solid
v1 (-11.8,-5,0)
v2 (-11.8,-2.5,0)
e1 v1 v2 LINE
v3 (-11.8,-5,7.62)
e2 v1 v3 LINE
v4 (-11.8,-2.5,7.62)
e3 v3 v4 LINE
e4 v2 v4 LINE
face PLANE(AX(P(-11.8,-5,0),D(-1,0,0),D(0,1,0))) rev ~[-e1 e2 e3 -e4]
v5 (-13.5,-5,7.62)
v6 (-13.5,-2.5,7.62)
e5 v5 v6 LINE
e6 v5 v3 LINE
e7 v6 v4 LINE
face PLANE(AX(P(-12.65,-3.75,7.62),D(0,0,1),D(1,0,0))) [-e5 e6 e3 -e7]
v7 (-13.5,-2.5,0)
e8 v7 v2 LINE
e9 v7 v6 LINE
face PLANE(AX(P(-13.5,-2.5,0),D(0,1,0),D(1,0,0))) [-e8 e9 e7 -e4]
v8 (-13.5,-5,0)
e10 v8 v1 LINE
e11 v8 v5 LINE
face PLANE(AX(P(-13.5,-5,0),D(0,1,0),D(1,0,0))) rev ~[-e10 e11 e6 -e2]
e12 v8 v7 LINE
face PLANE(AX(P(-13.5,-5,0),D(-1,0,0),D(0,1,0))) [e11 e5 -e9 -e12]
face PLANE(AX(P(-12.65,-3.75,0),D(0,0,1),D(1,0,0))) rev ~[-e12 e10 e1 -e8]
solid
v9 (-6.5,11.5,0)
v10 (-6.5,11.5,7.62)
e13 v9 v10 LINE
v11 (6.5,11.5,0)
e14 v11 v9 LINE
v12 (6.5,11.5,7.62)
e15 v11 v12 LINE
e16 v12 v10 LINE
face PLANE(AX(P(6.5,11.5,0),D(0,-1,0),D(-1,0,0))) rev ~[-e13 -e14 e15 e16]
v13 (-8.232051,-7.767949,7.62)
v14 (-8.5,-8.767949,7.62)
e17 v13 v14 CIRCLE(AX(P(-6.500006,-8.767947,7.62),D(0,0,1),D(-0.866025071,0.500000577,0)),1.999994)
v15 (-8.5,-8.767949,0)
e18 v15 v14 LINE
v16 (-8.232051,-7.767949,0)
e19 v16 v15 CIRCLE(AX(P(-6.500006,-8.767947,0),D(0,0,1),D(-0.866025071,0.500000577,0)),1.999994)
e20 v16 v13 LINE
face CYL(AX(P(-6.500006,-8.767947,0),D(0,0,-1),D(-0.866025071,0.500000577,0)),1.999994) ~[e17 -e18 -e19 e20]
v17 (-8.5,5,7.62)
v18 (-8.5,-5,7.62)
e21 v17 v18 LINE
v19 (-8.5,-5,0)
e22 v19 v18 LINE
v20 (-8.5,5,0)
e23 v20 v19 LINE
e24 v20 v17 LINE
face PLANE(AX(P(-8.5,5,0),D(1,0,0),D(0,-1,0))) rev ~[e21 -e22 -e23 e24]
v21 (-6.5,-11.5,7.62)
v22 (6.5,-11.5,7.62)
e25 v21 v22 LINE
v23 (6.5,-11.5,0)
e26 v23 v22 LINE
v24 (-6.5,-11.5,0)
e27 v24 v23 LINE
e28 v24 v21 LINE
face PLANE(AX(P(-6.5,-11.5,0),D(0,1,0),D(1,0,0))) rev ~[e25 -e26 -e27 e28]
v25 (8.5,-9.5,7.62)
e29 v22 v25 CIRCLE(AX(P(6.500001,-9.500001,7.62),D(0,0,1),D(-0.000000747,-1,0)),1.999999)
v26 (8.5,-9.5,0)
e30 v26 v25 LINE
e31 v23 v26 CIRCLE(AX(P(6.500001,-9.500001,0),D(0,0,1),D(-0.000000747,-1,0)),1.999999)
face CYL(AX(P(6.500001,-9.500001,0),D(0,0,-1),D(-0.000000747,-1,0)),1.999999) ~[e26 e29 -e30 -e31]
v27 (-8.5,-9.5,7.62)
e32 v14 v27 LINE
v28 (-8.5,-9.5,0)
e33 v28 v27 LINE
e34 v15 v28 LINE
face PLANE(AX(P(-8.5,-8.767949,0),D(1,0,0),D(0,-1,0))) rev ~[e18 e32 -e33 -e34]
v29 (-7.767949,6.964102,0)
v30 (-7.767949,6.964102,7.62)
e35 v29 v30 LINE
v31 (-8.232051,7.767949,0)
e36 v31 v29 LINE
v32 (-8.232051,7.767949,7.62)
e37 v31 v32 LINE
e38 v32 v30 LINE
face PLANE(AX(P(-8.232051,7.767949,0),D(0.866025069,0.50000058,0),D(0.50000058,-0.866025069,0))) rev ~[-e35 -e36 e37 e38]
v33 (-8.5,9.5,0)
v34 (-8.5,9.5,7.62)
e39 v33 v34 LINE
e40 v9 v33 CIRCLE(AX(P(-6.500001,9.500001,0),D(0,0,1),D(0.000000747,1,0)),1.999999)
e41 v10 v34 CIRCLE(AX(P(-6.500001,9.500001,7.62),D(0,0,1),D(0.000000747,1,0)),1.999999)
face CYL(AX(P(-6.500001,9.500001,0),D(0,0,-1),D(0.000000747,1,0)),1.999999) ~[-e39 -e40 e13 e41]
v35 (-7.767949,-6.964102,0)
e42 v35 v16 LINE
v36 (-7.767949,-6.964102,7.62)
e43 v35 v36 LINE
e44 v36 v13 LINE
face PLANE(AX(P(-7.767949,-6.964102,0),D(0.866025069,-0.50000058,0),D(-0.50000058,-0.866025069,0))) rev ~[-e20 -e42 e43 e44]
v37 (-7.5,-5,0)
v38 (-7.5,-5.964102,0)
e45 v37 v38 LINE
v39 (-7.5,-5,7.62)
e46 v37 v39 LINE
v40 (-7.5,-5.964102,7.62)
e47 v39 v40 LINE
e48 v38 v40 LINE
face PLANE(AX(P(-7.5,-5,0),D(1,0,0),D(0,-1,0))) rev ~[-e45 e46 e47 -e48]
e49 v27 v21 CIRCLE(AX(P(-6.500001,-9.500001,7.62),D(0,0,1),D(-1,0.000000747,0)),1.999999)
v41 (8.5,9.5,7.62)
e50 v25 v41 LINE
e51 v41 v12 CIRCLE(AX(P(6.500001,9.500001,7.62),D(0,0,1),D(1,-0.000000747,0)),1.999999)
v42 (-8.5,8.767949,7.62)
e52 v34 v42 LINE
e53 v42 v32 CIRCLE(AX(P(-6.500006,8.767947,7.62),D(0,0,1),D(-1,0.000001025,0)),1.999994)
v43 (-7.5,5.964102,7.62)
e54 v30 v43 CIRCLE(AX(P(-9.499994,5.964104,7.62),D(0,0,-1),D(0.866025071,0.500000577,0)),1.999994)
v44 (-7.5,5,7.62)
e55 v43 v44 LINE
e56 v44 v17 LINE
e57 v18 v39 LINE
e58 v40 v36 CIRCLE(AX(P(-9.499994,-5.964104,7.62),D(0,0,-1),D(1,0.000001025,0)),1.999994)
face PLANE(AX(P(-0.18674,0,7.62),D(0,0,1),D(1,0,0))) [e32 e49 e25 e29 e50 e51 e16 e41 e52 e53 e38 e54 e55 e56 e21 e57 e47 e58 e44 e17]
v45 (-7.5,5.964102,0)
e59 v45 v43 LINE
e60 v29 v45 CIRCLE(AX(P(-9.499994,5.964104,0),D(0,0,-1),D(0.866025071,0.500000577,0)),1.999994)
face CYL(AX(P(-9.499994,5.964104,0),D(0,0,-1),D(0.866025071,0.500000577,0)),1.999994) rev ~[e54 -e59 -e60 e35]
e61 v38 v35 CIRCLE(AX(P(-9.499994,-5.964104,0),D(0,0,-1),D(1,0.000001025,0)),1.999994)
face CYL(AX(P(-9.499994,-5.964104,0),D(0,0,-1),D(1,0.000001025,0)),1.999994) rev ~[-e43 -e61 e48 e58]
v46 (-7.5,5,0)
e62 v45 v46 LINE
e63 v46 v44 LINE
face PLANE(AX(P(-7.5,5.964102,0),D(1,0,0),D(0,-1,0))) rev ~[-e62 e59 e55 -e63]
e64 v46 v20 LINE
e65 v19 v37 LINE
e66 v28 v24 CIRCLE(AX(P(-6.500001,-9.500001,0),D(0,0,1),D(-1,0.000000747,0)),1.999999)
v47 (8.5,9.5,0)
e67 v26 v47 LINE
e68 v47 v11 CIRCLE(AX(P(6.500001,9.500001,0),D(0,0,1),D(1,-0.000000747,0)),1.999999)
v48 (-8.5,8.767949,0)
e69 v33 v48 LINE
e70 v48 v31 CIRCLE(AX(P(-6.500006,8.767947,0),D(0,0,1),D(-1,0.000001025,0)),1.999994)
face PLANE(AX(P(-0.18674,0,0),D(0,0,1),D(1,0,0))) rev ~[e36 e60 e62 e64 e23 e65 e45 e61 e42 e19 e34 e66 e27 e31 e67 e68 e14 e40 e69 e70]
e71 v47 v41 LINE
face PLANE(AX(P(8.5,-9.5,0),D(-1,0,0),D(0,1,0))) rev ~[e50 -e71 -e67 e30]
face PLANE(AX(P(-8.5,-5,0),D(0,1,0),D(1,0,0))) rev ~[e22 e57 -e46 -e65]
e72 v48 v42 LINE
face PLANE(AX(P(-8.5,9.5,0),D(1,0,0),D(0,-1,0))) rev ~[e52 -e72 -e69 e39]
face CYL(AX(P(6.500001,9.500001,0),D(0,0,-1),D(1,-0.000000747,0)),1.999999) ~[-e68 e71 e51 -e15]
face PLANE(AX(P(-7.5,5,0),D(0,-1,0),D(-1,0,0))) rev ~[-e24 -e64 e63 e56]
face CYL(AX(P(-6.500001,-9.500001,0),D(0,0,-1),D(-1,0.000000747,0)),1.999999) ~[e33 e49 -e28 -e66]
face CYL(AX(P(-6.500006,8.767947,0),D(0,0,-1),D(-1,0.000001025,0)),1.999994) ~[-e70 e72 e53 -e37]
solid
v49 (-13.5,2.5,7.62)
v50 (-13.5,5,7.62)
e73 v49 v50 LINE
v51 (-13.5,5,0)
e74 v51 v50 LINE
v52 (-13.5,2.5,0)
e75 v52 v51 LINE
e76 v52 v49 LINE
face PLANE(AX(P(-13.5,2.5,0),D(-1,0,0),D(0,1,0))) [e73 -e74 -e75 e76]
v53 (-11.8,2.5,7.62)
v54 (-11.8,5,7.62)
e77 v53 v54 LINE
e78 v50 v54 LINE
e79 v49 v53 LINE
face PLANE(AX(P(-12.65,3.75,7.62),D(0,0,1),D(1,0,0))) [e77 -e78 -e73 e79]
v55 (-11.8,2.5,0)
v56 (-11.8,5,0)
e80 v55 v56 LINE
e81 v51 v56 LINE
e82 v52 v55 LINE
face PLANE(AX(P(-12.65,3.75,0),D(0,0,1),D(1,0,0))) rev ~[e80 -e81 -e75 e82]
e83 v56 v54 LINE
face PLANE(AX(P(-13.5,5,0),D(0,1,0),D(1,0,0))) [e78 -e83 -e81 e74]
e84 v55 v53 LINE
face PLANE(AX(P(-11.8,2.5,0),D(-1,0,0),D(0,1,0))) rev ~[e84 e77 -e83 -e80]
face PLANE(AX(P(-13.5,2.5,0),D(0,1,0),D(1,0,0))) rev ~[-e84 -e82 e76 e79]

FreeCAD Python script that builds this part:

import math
import FreeCAD as App
import Part
import Sketcher
from FreeCAD import Vector


def add_polygon(sketch, points):
    """Adds a closed chain of lines whose ends are joined by coincident constraints."""
    first, n = sketch.GeometryCount, len(points)
    for a, b in zip(points, points[1:] + points[:1]):
        sketch.addGeometry(Part.LineSegment(App.Vector(*a, 0), App.Vector(*b, 0)), False)
    for i in range(n):
        sketch.addConstraint(Sketcher.Constraint("Coincident", first + i, 2, first + (i + 1) % n, 1))

doc = App.newDocument("Part")
body = doc.addObject("PartDesign::Body", "Body")
body.AllowCompound = True

# Sketch on XY plane
sketch1 = doc.addObject("Sketcher::SketchObject", "Sketch")
body.addObject(sketch1)
sketch1.AttachmentSupport = (doc.XY_Plane, [""])
sketch1.MapMode = "FlatFace"
sketch1.addGeometry(Part.LineSegment(Vector(-6.5, -11.5, 0), Vector(6.5, -11.5, 0)), False)  # 0
sketch1.addGeometry(Part.ArcOfCircle(Part.Circle(Vector(6.5, -9.5, 0), Vector(0, 0, 1), 2), math.radians(-90), math.radians(0)), False)  # 1
sketch1.addGeometry(Part.LineSegment(Vector(8.5, -9.5, 0), Vector(8.5, 9.5, 0)), False)  # 2
sketch1.addGeometry(Part.ArcOfCircle(Part.Circle(Vector(6.5, 9.5, 0), Vector(0, 0, 1), 2), math.radians(0), math.radians(90)), False)  # 3
sketch1.addGeometry(Part.LineSegment(Vector(6.5, 11.5, 0), Vector(-6.5, 11.5, 0)), False)  # 4
sketch1.addGeometry(Part.ArcOfCircle(Part.Circle(Vector(-6.5, 9.5, 0), Vector(0, 0, 1), 2), math.radians(90), math.radians(180)), False)  # 5
sketch1.addGeometry(Part.LineSegment(Vector(-8.5, 9.5, 0), Vector(-8.5, 8.8, 0)), False)  # 6
sketch1.addGeometry(Part.ArcOfCircle(Part.Circle(Vector(-6.5, 8.8, 0), Vector(0, 0, 1), 2), math.radians(180), math.radians(210)), False)  # 7
sketch1.addGeometry(Part.LineSegment(Vector(-8.2, 7.8, 0), Vector(-7.8, 7, 0)), False)  # 8
sketch1.addGeometry(Part.ArcOfCircle(Part.Circle(Vector(-9.5, 6, 0), Vector(0, 0, 1), 2), math.radians(0), math.radians(30)), False)  # 9
sketch1.addGeometry(Part.LineSegment(Vector(-7.5, 6, 0), Vector(-7.5, 5, 0)), False)  # 10
sketch1.addGeometry(Part.LineSegment(Vector(-7.5, 5, 0), Vector(-8.5, 5, 0)), False)  # 11
sketch1.addGeometry(Part.LineSegment(Vector(-8.5, 5, 0), Vector(-8.5, -5, 0)), False)  # 12
sketch1.addGeometry(Part.LineSegment(Vector(-8.5, -5, 0), Vector(-7.5, -5, 0)), False)  # 13
sketch1.addGeometry(Part.LineSegment(Vector(-7.5, -5, 0), Vector(-7.5, -6, 0)), False)  # 14
sketch1.addGeometry(Part.ArcOfCircle(Part.Circle(Vector(-9.5, -6, 0), Vector(0, 0, 1), 2), math.radians(-30), math.radians(0)), False)  # 15
sketch1.addGeometry(Part.LineSegment(Vector(-7.8, -7, 0), Vector(-8.2, -7.8, 0)), False)  # 16
sketch1.addGeometry(Part.ArcOfCircle(Part.Circle(Vector(-6.5, -8.8, 0), Vector(0, 0, 1), 2), math.radians(150), math.radians(180)), False)  # 17
sketch1.addGeometry(Part.LineSegment(Vector(-8.5, -8.8, 0), Vector(-8.5, -9.5, 0)), False)  # 18
sketch1.addGeometry(Part.ArcOfCircle(Part.Circle(Vector(-6.5, -9.5, 0), Vector(0, 0, 1), 2), math.radians(180), math.radians(270)), False)  # 19
add_polygon(sketch1, [(-13.5, -2.5), (-13.5, -5), (-11.8, -5), (-11.8, -2.5)])  # lines 20-23
add_polygon(sketch1, [(-13.5, 5), (-13.5, 2.5), (-11.8, 2.5), (-11.8, 5)])  # lines 24-27
sketch1.addConstraint(Sketcher.Constraint("Tangent", 0, 2, 1, 1))
sketch1.addConstraint(Sketcher.Constraint("Tangent", 1, 2, 2, 1))
sketch1.addConstraint(Sketcher.Constraint("Tangent", 2, 2, 3, 1))
sketch1.addConstraint(Sketcher.Constraint("Tangent", 3, 2, 4, 1))
sketch1.addConstraint(Sketcher.Constraint("Tangent", 4, 2, 5, 1))
sketch1.addConstraint(Sketcher.Constraint("Tangent", 5, 2, 6, 1))
sketch1.addConstraint(Sketcher.Constraint("Tangent", 6, 2, 7, 1))
sketch1.addConstraint(Sketcher.Constraint("Tangent", 7, 2, 8, 1))
sketch1.addConstraint(Sketcher.Constraint("Tangent", 8, 2, 9, 2))
sketch1.addConstraint(Sketcher.Constraint("Tangent", 9, 1, 10, 1))
sketch1.addConstraint(Sketcher.Constraint("Coincident", 10, 2, 11, 1))
sketch1.addConstraint(Sketcher.Constraint("Coincident", 11, 2, 12, 1))
sketch1.addConstraint(Sketcher.Constraint("Coincident", 12, 2, 13, 1))
sketch1.addConstraint(Sketcher.Constraint("Coincident", 13, 2, 14, 1))
sketch1.addConstraint(Sketcher.Constraint("Tangent", 14, 2, 15, 2))
sketch1.addConstraint(Sketcher.Constraint("Tangent", 15, 1, 16, 1))
sketch1.addConstraint(Sketcher.Constraint("Tangent", 16, 2, 17, 1))
sketch1.addConstraint(Sketcher.Constraint("Tangent", 17, 2, 18, 1))
sketch1.addConstraint(Sketcher.Constraint("Tangent", 18, 2, 19, 1))
sketch1.addConstraint(Sketcher.Constraint("Tangent", 19, 2, 0, 1))
sketch1.addConstraint(Sketcher.Constraint("Horizontal", 0))
sketch1.addConstraint(Sketcher.Constraint("Vertical", 2))
sketch1.addConstraint(Sketcher.Constraint("Horizontal", 4))
sketch1.addConstraint(Sketcher.Constraint("Vertical", 6))
sketch1.addConstraint(Sketcher.Constraint("Vertical", 10))
sketch1.addConstraint(Sketcher.Constraint("Horizontal", 11))
sketch1.addConstraint(Sketcher.Constraint("Vertical", 12))
sketch1.addConstraint(Sketcher.Constraint("Horizontal", 13))
sketch1.addConstraint(Sketcher.Constraint("Vertical", 14))
sketch1.addConstraint(Sketcher.Constraint("Vertical", 18))
sketch1.addConstraint(Sketcher.Constraint("Vertical", 20))
sketch1.addConstraint(Sketcher.Constraint("Horizontal", 21))
sketch1.addConstraint(Sketcher.Constraint("Vertical", 22))
sketch1.addConstraint(Sketcher.Constraint("Horizontal", 23))
sketch1.addConstraint(Sketcher.Constraint("Vertical", 24))
sketch1.addConstraint(Sketcher.Constraint("Horizontal", 25))
sketch1.addConstraint(Sketcher.Constraint("Vertical", 26))
sketch1.addConstraint(Sketcher.Constraint("Horizontal", 27))
sketch1.addConstraint(Sketcher.Constraint("Equal", 1, 3))
sketch1.addConstraint(Sketcher.Constraint("Equal", 3, 5))
sketch1.addConstraint(Sketcher.Constraint("Equal", 7, 9))
sketch1.addConstraint(Sketcher.Constraint("Equal", 9, 15))
sketch1.addConstraint(Sketcher.Constraint("Equal", 15, 17))
sketch1.addConstraint(Sketcher.Constraint("Equal", 5, 19))
sketch1.addConstraint(Sketcher.Constraint("Symmetric", 1, 3, 5, 3, -1, 1))
sketch1.addConstraint(Sketcher.Constraint("Symmetric", 9, 3, 15, 3, -1))
sketch1.addConstraint(Sketcher.Constraint("Symmetric", 7, 3, 17, 3, -1))
sketch1.addConstraint(Sketcher.Constraint("Symmetric", 23, 2, 24, 2, -1))
sketch1.addConstraint(Sketcher.Constraint("Symmetric", 21, 2, 26, 2, -1))
sketch1.addConstraint(Sketcher.Constraint("Horizontal", 13, 2, 20, 2))
sketch1.addConstraint(Sketcher.Constraint("Horizontal", 11, 2, 26, 2))
sketch1.addConstraint(Sketcher.Constraint("Vertical", 6, 2, 11, 2))
sketch1.addConstraint(Sketcher.Constraint("Radius", 1, 1.999999))
sketch1.addConstraint(Sketcher.Constraint("DistanceX", 0, 1, 0, 2, 13.0))
sketch1.addConstraint(Sketcher.Constraint("DistanceX", 11, 2, 11, 1, 1.0))
sketch1.addConstraint(Sketcher.Constraint("DistanceY", 2, 1, 2, 2, 19.0))
sketch1.addConstraint(Sketcher.Constraint("DistanceY", 12, 2, 12, 1, 10.0))
sketch1.addConstraint(Sketcher.Constraint("DistanceX", 21, 1, 21, 2, 1.7))
sketch1.addConstraint(Sketcher.Constraint("DistanceY", 20, 2, 20, 1, 2.5))
sketch1.addConstraint(Sketcher.Constraint("DistanceY", 7, 2, 6, 2, 1.0))
sketch1.addConstraint(Sketcher.Constraint("DistanceX", 20, 2, 12, 2, 5.0))
sketch1.addConstraint(Sketcher.Constraint("DistanceY", 10, 2, 10, 1, 0.964102))
sketch1.addConstraint(Sketcher.Constraint("Radius", 7, 1.999994))
pad1 = doc.addObject("PartDesign::Pad", "Pad")
body.addObject(pad1)
pad1.Profile = sketch1
pad1.Length = 7.62

doc.recompute()
